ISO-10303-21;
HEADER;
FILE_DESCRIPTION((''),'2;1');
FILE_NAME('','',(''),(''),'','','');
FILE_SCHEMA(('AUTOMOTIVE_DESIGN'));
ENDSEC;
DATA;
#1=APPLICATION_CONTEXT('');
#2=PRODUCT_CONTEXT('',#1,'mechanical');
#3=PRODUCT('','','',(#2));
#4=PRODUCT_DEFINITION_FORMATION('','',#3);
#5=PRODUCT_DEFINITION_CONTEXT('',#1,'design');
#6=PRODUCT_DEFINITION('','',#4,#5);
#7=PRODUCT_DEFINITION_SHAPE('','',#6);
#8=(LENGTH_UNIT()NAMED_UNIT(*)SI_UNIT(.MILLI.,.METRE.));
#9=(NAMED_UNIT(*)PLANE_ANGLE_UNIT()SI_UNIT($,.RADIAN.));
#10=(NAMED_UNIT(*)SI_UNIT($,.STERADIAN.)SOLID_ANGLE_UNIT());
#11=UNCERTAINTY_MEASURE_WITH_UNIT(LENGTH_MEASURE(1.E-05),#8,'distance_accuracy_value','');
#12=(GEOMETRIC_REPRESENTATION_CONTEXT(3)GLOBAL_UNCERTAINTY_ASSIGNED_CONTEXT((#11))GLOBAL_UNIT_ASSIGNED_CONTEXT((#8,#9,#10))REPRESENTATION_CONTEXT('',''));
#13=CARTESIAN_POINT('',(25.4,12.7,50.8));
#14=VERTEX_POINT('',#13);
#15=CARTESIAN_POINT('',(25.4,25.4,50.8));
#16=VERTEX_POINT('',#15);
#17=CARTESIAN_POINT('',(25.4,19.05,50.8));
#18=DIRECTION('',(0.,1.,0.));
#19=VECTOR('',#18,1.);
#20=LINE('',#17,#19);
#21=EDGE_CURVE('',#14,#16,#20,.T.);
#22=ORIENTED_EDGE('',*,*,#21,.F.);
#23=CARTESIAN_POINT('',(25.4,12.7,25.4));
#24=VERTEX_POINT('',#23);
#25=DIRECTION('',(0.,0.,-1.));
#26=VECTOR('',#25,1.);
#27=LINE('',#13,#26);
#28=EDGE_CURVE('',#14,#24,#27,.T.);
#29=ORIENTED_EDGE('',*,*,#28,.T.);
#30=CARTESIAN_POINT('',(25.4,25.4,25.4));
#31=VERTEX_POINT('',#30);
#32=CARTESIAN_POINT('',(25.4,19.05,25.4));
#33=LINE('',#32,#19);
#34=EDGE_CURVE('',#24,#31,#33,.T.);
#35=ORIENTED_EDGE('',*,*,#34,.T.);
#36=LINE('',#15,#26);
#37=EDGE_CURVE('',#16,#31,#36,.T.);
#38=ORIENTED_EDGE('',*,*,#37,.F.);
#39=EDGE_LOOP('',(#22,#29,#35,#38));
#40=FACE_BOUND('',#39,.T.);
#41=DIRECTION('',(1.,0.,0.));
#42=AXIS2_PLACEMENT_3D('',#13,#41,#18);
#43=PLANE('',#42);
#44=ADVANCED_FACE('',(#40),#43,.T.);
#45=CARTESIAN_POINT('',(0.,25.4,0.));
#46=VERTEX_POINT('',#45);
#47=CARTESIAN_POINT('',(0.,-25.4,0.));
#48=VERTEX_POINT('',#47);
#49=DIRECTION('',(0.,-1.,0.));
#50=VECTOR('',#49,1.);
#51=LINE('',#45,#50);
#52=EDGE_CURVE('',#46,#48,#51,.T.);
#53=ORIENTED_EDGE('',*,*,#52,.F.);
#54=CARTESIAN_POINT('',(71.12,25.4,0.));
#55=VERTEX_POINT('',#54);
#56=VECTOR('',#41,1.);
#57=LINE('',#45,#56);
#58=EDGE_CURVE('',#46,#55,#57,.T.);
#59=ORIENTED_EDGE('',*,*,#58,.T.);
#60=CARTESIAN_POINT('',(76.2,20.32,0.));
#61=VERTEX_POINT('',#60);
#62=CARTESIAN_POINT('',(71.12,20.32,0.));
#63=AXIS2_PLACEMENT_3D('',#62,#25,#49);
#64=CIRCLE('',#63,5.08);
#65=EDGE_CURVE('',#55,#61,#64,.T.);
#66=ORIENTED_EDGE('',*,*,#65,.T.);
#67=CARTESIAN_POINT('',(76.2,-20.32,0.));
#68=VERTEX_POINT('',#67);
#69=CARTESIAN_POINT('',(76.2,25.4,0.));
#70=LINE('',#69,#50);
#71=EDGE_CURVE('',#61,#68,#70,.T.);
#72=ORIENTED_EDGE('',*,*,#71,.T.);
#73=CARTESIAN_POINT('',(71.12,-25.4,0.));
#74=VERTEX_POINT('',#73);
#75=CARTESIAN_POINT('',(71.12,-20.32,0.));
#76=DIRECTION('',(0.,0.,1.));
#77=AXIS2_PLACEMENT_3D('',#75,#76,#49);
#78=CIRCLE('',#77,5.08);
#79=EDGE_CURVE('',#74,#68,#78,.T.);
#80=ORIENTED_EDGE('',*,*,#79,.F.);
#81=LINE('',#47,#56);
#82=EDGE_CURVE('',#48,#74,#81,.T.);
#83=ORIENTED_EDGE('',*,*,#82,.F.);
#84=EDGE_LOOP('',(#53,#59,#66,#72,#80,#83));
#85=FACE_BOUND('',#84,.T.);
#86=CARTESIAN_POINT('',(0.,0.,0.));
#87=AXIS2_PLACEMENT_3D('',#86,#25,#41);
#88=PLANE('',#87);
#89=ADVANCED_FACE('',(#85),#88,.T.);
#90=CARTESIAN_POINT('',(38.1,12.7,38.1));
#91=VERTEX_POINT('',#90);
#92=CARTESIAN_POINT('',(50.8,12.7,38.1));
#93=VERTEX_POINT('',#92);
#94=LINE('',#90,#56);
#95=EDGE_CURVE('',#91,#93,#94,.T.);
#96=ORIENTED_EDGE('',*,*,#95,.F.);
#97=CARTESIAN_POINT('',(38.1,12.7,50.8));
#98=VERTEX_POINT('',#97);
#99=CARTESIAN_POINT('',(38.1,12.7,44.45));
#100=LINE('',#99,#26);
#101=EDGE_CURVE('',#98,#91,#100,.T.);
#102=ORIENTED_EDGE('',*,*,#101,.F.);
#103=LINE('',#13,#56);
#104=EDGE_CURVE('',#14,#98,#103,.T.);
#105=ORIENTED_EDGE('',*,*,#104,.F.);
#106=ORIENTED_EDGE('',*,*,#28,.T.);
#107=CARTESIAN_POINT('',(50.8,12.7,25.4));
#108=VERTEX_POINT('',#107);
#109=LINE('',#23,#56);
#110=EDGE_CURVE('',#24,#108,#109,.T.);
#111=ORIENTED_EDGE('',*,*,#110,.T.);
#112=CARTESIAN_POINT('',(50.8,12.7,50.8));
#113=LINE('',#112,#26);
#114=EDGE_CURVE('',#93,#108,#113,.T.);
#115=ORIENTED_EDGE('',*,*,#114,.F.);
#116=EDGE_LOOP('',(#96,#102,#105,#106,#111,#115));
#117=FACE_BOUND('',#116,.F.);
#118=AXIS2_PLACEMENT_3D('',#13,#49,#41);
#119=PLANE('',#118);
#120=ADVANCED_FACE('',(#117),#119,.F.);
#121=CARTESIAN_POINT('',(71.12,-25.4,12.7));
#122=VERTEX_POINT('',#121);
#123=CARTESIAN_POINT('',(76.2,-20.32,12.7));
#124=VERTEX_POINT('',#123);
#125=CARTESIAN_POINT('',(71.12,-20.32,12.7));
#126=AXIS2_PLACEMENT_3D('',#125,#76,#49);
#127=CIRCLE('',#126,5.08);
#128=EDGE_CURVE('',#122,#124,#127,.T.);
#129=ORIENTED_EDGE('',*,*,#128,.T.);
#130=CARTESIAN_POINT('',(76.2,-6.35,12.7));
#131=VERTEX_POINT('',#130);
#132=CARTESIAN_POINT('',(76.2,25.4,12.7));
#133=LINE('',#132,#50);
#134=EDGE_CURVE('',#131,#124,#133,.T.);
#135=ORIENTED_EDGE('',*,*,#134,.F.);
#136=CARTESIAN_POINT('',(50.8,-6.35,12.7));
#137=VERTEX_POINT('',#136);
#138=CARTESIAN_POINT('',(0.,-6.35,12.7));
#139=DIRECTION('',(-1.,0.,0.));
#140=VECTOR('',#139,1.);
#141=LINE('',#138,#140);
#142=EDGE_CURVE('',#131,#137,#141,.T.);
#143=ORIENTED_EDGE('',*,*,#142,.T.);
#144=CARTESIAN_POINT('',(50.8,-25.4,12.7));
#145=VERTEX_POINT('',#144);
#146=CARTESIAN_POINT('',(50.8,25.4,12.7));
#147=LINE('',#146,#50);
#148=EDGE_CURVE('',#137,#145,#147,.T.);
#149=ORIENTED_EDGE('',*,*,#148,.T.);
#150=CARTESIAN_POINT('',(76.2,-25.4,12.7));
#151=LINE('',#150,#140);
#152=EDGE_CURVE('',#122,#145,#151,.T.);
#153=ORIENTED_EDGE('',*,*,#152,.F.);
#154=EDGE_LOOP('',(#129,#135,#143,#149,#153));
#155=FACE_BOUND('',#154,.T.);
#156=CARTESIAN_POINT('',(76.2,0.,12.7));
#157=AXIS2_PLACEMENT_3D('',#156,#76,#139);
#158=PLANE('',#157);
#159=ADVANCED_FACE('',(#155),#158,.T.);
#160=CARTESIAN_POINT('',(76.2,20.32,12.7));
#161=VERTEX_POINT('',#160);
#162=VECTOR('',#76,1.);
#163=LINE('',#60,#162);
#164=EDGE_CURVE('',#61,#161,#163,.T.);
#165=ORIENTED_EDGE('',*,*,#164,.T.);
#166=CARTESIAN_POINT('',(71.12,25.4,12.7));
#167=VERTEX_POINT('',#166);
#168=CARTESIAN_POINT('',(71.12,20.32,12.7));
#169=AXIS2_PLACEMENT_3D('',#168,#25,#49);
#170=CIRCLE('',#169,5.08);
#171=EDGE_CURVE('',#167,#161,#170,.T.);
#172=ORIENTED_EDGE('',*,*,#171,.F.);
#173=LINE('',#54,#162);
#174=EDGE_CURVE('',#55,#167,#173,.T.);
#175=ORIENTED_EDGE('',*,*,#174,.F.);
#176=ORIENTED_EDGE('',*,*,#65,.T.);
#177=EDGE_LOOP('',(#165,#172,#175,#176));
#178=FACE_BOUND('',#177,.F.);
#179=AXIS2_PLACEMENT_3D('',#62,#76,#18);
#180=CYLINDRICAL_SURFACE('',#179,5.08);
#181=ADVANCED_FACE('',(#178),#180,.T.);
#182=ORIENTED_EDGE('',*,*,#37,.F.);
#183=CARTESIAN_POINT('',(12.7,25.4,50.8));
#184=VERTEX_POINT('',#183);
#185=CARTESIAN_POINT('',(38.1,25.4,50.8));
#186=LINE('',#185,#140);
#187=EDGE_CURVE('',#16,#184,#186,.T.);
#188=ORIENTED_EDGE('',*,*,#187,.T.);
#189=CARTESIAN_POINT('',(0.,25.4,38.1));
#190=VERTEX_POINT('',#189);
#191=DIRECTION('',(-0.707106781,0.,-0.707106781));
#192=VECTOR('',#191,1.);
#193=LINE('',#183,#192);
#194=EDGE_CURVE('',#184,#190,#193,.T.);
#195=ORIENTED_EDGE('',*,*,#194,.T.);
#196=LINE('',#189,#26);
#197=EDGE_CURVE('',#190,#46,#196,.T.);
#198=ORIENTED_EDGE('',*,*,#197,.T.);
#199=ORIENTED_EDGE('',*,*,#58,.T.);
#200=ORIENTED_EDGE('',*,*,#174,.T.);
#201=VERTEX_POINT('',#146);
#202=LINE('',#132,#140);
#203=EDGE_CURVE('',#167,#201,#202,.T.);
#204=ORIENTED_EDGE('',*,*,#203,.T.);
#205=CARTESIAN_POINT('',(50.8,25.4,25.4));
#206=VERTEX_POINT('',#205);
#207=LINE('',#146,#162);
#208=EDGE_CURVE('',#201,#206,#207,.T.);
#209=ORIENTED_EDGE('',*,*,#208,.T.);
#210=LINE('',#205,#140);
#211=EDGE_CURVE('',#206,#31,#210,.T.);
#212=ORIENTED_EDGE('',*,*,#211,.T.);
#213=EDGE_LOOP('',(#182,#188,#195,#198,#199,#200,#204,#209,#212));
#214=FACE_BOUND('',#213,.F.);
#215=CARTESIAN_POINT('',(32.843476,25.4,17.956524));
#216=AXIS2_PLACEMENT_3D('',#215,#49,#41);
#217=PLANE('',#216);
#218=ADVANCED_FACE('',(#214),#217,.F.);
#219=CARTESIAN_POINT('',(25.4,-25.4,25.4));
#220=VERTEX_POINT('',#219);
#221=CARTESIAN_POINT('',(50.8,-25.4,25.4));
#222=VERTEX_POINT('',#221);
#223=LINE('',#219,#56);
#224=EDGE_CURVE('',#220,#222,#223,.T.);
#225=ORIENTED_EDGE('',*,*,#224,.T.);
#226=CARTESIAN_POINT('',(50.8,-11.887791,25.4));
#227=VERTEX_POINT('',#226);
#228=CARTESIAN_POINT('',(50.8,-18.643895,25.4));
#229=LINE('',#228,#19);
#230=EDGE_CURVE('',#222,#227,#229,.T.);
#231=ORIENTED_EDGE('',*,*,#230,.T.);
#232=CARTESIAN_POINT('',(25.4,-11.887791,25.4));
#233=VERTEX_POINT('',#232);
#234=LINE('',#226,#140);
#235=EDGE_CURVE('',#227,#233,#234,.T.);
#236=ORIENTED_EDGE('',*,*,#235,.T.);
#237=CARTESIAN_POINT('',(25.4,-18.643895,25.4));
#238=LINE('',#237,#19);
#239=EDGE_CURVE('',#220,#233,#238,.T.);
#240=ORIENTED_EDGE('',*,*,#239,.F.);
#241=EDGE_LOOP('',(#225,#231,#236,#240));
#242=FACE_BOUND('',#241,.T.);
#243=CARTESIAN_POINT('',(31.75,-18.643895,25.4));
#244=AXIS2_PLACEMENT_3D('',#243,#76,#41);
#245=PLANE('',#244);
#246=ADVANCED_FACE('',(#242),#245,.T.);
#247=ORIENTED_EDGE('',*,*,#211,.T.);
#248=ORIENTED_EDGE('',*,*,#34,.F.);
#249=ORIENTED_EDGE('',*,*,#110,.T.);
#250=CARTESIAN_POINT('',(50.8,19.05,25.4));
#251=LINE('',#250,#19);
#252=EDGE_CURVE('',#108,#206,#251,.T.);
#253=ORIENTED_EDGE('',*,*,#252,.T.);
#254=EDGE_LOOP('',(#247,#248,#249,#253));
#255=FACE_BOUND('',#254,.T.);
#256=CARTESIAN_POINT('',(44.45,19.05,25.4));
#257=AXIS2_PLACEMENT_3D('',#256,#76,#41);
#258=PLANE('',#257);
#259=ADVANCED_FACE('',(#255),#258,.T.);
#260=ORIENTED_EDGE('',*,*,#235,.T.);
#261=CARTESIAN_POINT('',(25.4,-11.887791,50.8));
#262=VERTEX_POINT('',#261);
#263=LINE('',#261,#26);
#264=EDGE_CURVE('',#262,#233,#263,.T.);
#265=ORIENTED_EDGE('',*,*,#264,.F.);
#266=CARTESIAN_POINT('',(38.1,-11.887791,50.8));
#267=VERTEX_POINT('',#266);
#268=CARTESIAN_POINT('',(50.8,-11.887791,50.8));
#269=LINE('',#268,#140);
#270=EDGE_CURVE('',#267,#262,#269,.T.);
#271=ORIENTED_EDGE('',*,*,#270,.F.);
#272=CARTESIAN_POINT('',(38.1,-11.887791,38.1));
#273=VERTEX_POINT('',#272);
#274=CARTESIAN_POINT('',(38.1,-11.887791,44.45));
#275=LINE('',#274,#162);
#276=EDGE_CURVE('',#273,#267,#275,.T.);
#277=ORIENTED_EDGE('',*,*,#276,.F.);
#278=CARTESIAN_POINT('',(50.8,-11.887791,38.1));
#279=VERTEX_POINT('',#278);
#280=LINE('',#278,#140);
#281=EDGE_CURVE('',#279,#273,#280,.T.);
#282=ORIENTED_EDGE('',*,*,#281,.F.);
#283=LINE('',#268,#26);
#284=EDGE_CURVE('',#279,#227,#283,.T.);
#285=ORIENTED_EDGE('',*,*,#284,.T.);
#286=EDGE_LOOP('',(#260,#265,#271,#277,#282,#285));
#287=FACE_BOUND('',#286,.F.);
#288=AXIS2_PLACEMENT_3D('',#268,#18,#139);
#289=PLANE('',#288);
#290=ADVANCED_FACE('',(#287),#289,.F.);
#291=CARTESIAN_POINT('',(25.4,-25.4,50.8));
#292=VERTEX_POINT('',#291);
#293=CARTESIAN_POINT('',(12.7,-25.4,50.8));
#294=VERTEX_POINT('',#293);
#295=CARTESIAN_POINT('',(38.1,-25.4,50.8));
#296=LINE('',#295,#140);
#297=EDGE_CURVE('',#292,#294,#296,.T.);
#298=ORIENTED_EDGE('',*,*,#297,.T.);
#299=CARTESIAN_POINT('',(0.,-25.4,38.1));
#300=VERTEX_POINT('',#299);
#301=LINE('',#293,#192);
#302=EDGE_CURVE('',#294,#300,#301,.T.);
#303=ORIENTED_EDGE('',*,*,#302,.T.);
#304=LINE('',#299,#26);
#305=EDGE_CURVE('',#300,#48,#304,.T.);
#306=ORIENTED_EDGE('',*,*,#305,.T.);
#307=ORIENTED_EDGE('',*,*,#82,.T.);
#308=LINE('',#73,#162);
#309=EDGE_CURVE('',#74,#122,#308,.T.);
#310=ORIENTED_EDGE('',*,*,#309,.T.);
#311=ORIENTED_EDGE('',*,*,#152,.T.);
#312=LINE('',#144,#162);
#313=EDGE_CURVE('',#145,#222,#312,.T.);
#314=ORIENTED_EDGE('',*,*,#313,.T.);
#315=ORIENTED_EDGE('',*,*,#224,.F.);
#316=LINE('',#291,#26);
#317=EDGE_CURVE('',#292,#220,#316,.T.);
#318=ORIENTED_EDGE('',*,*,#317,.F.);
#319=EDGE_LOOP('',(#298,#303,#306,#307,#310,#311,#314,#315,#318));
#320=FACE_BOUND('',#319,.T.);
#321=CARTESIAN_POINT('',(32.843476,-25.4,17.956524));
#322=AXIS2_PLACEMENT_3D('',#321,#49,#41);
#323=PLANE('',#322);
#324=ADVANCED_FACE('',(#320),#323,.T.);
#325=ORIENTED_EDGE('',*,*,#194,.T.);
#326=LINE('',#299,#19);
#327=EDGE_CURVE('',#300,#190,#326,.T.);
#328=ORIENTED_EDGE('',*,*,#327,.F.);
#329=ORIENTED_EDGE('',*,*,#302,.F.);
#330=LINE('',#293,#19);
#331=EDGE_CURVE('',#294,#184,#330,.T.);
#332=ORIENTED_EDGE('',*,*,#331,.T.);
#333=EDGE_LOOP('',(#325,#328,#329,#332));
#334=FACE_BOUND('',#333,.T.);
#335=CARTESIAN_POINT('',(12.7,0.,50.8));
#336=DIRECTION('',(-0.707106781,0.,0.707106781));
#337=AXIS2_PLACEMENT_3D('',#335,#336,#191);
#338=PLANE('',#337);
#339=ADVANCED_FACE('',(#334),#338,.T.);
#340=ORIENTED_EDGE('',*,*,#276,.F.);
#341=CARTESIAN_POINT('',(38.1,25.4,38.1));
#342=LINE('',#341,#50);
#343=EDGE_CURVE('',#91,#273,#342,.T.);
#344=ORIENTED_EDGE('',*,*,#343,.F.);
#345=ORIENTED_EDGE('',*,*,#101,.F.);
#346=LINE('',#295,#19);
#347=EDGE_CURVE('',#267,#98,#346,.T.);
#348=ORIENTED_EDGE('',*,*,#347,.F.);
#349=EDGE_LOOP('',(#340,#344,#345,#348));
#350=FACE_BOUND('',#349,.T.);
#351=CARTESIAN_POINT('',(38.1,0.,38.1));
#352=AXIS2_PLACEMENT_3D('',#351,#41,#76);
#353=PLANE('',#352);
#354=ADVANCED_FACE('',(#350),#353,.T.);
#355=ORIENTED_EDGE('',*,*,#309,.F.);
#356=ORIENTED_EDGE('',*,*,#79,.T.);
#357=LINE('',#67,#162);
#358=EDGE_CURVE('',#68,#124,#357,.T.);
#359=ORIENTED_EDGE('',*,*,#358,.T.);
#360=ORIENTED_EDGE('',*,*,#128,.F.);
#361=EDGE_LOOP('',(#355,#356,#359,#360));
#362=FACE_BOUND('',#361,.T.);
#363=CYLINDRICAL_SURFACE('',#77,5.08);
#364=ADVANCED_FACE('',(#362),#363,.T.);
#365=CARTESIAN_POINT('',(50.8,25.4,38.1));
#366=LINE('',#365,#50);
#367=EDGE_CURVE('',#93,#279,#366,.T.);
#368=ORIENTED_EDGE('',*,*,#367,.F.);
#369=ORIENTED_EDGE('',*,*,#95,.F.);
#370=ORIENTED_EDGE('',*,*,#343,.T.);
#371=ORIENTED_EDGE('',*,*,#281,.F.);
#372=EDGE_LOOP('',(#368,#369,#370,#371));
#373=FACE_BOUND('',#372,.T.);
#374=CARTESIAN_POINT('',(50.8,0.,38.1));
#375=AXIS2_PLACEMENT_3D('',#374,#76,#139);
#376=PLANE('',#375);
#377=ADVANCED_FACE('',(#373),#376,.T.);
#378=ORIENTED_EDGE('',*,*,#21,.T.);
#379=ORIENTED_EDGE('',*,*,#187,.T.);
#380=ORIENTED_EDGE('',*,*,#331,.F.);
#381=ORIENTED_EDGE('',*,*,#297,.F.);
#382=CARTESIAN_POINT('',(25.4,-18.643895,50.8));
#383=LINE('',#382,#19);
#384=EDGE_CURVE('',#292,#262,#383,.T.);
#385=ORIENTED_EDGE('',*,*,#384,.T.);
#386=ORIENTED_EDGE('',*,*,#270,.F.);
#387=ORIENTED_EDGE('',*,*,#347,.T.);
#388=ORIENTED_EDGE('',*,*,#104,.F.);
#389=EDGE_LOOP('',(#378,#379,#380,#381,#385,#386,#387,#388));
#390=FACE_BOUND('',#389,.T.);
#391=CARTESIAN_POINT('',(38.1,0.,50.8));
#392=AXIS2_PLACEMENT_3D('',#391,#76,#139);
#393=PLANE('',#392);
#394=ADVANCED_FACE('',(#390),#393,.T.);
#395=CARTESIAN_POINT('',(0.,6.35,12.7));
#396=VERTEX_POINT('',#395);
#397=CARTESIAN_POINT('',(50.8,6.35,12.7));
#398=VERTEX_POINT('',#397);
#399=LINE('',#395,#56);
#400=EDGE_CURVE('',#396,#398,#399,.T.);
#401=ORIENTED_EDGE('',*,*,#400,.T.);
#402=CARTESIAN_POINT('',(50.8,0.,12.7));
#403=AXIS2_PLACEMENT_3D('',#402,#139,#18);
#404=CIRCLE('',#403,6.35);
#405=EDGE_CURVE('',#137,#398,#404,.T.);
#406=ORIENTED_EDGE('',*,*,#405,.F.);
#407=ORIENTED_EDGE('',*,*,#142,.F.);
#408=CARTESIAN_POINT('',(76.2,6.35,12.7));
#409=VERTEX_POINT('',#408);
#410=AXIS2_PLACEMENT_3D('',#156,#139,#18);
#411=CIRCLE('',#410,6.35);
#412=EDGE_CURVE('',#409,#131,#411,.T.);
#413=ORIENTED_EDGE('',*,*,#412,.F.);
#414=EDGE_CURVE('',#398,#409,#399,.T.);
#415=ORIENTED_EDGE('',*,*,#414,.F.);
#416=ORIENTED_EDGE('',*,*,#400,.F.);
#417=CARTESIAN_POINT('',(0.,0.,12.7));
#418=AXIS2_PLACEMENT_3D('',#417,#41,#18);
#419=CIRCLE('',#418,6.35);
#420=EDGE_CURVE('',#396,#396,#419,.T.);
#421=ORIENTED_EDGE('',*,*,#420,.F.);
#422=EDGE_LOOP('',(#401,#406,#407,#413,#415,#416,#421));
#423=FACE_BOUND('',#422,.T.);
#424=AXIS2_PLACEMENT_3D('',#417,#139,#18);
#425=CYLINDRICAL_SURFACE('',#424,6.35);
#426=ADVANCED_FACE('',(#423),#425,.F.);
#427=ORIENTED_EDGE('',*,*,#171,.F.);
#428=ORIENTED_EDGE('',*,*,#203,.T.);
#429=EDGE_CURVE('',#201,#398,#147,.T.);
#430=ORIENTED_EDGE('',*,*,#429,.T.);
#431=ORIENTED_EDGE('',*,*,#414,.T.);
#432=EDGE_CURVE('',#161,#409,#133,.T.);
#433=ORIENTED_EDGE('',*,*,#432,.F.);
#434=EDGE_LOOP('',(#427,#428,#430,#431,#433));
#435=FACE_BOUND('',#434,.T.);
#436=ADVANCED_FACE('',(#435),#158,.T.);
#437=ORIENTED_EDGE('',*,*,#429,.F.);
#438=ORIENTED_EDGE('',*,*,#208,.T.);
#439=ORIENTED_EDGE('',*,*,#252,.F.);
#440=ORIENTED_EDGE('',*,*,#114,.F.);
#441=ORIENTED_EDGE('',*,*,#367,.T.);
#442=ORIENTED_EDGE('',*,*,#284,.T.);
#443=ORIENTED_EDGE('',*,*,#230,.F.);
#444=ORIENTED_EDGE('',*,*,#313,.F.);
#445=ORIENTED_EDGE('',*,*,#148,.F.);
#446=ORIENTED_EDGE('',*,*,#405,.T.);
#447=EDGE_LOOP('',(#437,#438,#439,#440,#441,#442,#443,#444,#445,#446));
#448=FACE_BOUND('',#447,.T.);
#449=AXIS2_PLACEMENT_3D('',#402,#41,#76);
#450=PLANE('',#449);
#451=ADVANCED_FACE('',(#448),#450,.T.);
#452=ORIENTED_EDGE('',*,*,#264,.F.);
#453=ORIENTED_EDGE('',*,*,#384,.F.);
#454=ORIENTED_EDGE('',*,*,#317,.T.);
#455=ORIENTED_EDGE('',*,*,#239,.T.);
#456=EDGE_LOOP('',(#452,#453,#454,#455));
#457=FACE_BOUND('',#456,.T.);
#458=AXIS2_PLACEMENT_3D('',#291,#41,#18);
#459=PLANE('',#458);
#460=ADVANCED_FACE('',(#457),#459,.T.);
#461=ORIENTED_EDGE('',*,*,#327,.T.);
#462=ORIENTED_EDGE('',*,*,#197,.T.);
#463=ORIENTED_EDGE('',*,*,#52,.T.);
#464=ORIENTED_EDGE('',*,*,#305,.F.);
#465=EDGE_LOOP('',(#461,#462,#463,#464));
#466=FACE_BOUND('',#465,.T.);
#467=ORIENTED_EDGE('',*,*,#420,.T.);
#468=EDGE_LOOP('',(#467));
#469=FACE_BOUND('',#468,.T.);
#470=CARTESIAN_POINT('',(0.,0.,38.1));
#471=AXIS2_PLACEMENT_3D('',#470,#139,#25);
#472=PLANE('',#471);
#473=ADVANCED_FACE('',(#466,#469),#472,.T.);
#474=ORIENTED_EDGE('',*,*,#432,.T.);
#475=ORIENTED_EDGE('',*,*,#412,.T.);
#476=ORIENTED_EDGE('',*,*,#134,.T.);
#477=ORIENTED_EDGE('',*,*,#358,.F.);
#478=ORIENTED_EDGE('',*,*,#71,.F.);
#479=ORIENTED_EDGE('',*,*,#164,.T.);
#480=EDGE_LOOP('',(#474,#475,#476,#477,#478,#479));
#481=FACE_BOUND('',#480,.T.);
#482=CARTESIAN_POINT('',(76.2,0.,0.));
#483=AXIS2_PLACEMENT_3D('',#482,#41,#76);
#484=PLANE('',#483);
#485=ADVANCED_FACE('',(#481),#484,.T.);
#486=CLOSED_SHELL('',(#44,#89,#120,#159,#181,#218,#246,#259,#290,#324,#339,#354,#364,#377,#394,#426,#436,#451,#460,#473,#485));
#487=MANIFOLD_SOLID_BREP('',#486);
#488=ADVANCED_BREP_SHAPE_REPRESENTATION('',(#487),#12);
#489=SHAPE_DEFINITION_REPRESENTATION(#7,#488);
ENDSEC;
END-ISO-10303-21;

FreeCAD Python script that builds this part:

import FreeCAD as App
import Part
import Sketcher

V = App.Vector
Q = App.Units.Quantity


def edges_at(feature, points):
    """Names of the edges that pass closest to the given points."""
    edges = feature.Shape.Edges
    near = lambda p: min(range(len(edges)), key=lambda i: edges[i].distToShape(Part.Vertex(*p))[0])
    return sorted({f"Edge{near(p) + 1}" for p in points})


def add_polygon(sketch, points):
    """Adds a closed chain of lines whose ends are joined by coincident constraints."""
    first, n = sketch.GeometryCount, len(points)
    for a, b in zip(points, points[1:] + points[:1]):
        sketch.addGeometry(Part.LineSegment(App.Vector(*a, 0), App.Vector(*b, 0)), False)
    for i in range(n):
        sketch.addConstraint(Sketcher.Constraint("Coincident", first + i, 2, first + (i + 1) % n, 1))

doc = App.newDocument("Part")
body = doc.addObject("PartDesign::Body", "Body")

# Sketch on XZ plane
sketch1 = body.newObject("Sketcher::SketchObject", "Sketch")
sketch1.AttachmentSupport = (doc.getObject("XZ_Plane"), [""])
sketch1.MapMode = "FlatFace"
add_polygon(sketch1, [(0, 38), (0, 0), (76, 0), (76, 13), (51, 13), (51, 38), (38, 38), (38, 51), (13, 51)])  # lines 0-8
sketch1.addConstraint([
    Sketcher.Constraint("Vertical", 0),
    Sketcher.Constraint("Horizontal", 1),
    Sketcher.Constraint("Vertical", 2),
    Sketcher.Constraint("Horizontal", 3),
    Sketcher.Constraint("Vertical", 4),
    Sketcher.Constraint("Horizontal", 5),
    Sketcher.Constraint("Vertical", 6),
    Sketcher.Constraint("Horizontal", 7),
    Sketcher.Constraint("Coincident", 0, 2, -1, 1),
    Sketcher.Constraint("Horizontal", 5, 2, 8, 2),
    Sketcher.Constraint("Equal", 3, 7),
    Sketcher.Constraint("Equal", 5, 2),
    Sketcher.Constraint("Equal", 7, 4),
    Sketcher.Constraint("Equal", 2, 6),
    Sketcher.Constraint("DistanceX", 1, 1, 1, 2, Q("3 in")),
    Sketcher.Constraint("DistanceX", 3, 2, 3, 1, Q("1 in")),
    Sketcher.Constraint("DistanceX", 5, 2, 5, 1, Q("0.5 in")),
])
pad1 = body.newObject("PartDesign::Pad", "Pad")
pad1.Profile = sketch1
pad1.Length = Q("2 in")
pad1.Midplane = True

# Sketch on XY plane
sketch2 = body.newObject("Sketcher::SketchObject", "Sketch001")
sketch2.AttachmentSupport = (doc.getObject("XY_Plane"), [""])
sketch2.MapMode = "FlatFace"
sketch2.AttachmentOffset = App.Placement(V(0, 0, 2 * 25.4), App.Rotation())
add_polygon(sketch2, [(51, 13), (51, 25), (25, 25), (25, 13)])  # lines 0-3
add_polygon(sketch2, [(25, -12), (25, -25), (51, -25), (51, -12)])  # lines 4-7
sketch2.addConstraint([
    Sketcher.Constraint("Vertical", 0),
    Sketcher.Constraint("Horizontal", 1),
    Sketcher.Constraint("Vertical", 2),
    Sketcher.Constraint("Horizontal", 3),
    Sketcher.Constraint("Vertical", 4),
    Sketcher.Constraint("Horizontal", 5),
    Sketcher.Constraint("Vertical", 6),
    Sketcher.Constraint("Horizontal", 7),
    Sketcher.Constraint("Symmetric", 1, 2, 4, 2, -1),
    Sketcher.Constraint("Vertical", 3, 2, 5, 2),
    Sketcher.Constraint("DistanceX", 1, 2, 1, 1, Q("1 in")),
    Sketcher.Constraint("DistanceY", 0, 1, 0, 2, Q("0.5 in")),
    Sketcher.Constraint("DistanceX", -1, 1, 0, 2, Q("2 in")),
    Sketcher.Constraint("DistanceY", -1, 1, 0, 2, Q("1 in")),
    Sketcher.Constraint("DistanceY", 4, 2, 4, 1, Q("13.512209 mm")),
])
pocket1 = body.newObject("PartDesign::Pocket", "Pocket")
pocket1.Profile = sketch2
pocket1.Length = Q("1 in")

# Sketch on YZ plane
sketch3 = body.newObject("Sketcher::SketchObject", "Sketch002")
sketch3.AttachmentSupport = (doc.getObject("YZ_Plane"), [""])
sketch3.MapMode = "FlatFace"
sketch3.addGeometry(Part.Circle(V(0, 13, 0), V(0, 0, 1), 6), False)
sketch3.addConstraint([
    Sketcher.Constraint("PointOnObject", 0, 3, -2),
    Sketcher.Constraint("Diameter", 0, Q("0.5 in")),
    Sketcher.Constraint("DistanceY", -1, 1, 0, 3, Q("0.5 in")),
])
pocket2 = body.newObject("PartDesign::Pocket", "Pocket001")
pocket2.Profile = sketch3
pocket2.Type = "ThroughAll"
pocket2.Reversed = True
doc.recompute()

fillet = body.newObject("PartDesign::Fillet", "Fillet")
fillet.Base = (pocket2, edges_at(pocket2, [(76.2, -25.4, 6.35), (76.2, 25.4, 6.35)]))
fillet.Radius = Q("0.2 in")

doc.recompute()
